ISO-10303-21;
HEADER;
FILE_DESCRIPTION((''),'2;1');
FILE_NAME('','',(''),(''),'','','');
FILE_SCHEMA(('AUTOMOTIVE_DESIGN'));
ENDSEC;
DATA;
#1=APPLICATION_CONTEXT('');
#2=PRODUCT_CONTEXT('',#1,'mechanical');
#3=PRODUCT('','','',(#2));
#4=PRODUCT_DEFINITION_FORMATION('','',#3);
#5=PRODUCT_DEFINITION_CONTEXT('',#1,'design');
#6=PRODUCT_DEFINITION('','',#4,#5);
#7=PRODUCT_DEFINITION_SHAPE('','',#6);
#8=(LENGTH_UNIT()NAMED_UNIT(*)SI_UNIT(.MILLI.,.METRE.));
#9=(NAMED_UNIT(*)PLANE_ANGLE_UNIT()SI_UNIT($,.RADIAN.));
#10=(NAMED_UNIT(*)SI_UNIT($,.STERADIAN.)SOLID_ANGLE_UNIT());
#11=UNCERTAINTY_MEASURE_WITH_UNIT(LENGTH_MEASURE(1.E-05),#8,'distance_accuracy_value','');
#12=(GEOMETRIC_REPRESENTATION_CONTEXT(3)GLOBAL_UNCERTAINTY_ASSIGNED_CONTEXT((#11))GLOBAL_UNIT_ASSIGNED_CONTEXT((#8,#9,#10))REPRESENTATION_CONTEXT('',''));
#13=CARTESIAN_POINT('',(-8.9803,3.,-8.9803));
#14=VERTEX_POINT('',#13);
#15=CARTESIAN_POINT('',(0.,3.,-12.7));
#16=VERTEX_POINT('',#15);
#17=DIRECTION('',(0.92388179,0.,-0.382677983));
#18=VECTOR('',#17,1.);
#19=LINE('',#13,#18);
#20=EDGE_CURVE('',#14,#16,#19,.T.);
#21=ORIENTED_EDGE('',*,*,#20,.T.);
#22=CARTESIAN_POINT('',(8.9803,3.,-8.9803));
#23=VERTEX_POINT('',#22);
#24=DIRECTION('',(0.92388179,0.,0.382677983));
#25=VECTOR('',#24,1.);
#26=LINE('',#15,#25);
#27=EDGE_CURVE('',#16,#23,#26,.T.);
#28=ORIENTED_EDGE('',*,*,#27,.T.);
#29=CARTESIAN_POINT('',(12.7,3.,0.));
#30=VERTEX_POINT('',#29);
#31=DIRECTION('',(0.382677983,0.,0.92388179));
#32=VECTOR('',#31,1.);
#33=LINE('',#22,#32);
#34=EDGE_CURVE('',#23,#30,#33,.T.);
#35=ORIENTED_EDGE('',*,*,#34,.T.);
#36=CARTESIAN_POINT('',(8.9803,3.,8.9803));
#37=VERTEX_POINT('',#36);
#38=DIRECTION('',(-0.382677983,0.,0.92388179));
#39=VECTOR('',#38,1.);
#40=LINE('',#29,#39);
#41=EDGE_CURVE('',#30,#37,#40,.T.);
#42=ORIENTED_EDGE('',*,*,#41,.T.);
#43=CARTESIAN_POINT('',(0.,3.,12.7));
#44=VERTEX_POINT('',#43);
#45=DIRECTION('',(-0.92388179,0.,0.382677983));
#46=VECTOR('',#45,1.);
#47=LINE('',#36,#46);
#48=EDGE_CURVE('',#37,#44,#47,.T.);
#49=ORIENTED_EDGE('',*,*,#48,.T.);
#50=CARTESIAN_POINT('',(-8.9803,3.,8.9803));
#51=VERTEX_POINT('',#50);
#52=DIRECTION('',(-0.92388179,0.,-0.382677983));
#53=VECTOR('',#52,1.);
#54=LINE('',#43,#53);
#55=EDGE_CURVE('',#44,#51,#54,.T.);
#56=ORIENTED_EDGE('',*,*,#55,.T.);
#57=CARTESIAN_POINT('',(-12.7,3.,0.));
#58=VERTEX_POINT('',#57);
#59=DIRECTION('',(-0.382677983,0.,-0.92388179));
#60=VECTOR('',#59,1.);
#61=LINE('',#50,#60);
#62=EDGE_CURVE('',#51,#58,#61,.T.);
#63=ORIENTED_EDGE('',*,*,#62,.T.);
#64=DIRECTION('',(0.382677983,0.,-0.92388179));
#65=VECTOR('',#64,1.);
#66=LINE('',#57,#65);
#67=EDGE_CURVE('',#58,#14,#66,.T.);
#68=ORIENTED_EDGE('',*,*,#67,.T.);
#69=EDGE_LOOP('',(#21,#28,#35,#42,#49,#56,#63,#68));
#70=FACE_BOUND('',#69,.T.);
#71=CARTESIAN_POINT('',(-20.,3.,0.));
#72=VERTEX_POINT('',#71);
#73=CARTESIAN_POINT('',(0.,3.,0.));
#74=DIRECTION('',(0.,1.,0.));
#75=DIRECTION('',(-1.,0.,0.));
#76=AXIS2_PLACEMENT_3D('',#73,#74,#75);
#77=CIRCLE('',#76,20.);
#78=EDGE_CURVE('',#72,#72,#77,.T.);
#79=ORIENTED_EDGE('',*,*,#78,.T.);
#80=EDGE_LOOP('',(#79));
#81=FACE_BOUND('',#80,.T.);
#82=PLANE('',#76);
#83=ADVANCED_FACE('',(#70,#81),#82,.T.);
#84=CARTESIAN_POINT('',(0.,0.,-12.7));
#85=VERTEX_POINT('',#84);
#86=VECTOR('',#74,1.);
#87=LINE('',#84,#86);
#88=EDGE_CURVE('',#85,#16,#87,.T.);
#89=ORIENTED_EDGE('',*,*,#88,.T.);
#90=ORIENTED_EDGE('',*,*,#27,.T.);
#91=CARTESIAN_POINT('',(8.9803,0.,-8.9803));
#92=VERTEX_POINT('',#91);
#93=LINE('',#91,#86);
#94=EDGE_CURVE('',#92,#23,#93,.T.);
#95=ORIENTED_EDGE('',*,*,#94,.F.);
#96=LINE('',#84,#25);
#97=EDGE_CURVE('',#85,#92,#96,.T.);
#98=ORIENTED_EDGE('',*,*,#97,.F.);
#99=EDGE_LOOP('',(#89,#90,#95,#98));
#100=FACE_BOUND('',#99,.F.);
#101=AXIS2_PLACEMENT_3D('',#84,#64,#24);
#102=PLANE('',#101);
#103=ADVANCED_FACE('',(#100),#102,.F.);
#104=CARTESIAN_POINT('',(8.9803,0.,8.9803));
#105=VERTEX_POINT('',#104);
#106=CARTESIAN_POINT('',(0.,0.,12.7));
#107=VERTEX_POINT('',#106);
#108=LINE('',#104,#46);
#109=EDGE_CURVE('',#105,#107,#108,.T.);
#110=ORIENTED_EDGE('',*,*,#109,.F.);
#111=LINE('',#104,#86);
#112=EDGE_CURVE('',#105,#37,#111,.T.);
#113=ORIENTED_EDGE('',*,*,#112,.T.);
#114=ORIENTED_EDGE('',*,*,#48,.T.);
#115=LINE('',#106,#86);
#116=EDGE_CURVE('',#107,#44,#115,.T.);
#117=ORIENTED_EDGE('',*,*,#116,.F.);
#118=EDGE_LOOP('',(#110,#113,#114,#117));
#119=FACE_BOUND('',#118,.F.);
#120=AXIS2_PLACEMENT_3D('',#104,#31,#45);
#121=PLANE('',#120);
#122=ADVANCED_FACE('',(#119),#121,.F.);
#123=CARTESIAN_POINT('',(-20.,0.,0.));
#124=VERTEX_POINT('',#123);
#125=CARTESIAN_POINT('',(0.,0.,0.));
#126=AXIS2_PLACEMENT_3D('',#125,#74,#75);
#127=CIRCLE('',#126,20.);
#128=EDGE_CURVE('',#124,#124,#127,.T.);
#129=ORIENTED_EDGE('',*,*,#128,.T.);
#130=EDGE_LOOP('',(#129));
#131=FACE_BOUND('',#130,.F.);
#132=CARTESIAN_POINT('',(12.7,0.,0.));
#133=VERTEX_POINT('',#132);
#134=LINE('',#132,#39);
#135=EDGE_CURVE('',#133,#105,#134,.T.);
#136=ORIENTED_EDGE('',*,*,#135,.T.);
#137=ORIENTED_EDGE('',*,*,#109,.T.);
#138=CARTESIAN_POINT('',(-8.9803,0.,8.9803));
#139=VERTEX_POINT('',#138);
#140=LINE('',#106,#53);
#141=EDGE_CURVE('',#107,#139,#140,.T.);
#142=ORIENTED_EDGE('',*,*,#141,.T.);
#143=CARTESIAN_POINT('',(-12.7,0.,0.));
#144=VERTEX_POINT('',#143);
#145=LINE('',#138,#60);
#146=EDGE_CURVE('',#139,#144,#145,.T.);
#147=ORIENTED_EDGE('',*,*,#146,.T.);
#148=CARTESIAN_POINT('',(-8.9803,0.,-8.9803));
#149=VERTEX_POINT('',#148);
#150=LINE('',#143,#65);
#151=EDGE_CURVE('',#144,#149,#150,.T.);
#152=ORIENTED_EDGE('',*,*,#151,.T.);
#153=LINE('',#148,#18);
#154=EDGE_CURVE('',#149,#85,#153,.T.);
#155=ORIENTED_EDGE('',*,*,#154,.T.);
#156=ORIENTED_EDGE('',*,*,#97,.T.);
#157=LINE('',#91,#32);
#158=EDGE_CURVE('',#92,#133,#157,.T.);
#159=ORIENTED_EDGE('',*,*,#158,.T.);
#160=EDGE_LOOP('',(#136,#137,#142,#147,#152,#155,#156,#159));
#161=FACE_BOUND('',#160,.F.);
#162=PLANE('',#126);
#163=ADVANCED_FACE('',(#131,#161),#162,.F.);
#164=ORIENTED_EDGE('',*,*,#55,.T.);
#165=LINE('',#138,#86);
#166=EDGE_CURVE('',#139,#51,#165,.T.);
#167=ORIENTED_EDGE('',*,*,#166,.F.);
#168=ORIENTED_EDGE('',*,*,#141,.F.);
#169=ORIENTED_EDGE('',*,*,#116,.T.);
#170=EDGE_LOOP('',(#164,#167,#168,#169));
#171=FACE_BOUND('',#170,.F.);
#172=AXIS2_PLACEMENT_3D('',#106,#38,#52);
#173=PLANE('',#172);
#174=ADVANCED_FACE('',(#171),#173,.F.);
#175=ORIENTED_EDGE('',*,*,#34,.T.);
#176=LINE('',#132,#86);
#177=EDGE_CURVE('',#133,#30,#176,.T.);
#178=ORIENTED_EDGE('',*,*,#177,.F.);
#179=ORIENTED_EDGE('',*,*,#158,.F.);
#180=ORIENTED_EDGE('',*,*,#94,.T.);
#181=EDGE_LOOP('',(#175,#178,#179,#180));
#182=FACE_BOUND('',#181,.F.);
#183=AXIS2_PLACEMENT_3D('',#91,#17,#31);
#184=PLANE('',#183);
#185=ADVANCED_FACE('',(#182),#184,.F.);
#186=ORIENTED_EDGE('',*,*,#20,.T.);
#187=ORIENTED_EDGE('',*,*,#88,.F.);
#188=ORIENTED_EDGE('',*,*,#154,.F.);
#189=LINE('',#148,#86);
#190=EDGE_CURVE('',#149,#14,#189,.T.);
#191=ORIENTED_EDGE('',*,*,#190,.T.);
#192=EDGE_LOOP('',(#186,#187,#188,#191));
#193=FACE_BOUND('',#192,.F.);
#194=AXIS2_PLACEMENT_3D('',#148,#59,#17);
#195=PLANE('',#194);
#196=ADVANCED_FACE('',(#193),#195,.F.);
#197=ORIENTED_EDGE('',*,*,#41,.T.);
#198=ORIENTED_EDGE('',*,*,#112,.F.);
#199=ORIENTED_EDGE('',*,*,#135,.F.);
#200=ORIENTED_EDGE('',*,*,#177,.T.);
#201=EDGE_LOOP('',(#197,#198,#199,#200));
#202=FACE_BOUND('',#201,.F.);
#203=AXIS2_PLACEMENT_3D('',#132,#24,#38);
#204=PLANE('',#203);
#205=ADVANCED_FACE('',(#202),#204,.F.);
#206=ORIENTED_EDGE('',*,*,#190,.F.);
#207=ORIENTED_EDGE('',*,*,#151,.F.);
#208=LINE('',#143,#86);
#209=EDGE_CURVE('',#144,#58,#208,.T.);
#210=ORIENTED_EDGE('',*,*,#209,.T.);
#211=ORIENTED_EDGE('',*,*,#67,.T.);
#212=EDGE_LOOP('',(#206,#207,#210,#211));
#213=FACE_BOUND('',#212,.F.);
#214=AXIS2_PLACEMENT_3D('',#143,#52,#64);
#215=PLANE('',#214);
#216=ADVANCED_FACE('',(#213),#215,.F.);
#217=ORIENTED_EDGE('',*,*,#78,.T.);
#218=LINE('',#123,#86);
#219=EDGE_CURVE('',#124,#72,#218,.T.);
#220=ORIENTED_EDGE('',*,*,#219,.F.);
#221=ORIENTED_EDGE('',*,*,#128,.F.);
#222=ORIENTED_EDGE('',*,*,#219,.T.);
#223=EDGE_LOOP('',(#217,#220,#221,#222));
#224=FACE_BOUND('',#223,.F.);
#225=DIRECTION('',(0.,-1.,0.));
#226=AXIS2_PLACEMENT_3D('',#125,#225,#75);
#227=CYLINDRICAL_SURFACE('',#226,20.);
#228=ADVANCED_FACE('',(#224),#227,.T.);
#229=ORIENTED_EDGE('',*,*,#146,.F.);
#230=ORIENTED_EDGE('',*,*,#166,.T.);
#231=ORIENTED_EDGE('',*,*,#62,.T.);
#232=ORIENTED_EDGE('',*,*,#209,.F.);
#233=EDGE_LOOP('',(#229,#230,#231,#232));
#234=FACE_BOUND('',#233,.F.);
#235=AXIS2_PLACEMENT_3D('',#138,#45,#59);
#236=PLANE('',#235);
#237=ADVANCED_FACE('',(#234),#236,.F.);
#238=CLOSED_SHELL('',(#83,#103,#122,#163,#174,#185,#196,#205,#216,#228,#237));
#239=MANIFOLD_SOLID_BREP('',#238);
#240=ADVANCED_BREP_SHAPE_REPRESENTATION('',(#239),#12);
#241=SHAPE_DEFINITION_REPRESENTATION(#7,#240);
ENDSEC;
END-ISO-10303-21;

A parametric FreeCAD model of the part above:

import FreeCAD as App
import Part
import Sketcher

V = App.Vector
Q = App.Units.Quantity

doc = App.newDocument("Part")
params = doc.addObject("Spreadsheet::Sheet", "Params")
for row, (alias, value) in enumerate([
    ("sketch1_diameter", "40 mm"),
    ("pad1_length", "3 mm"),
], start=1):
    params.set(f"A{row}", alias)
    params.set(f"B{row}", "=" + value)
    params.setAlias(f"B{row}", alias)

body = doc.addObject("PartDesign::Body", "Body")

# Sketch on XZ plane
sketch1 = body.newObject("Sketcher::SketchObject", "Sketch")
sketch1.AttachmentSupport = (doc.getObject("XZ_Plane"), [""])
sketch1.MapMode = "FlatFace"
sketch1.addGeometry([
    Part.Circle(V(0, 0, 0), V(0, 0, 1), 20),  # 0
    Part.LineSegment(V(-8.9803, -8.9803, 0), V(0, -12.7, 0)),  # 1
    Part.LineSegment(V(0, -12.7, 0), V(8.9803, -8.9803, 0)),  # 2
    Part.LineSegment(V(8.9803, -8.9803, 0), V(12.7, 0, 0)),  # 3
    Part.LineSegment(V(12.7, 0, 0), V(8.9803, 8.9803, 0)),  # 4
    Part.LineSegment(V(8.9803, 8.9803, 0), V(0, 12.7, 0)),  # 5
    Part.LineSegment(V(0, 12.7, 0), V(-8.9803, 8.9803, 0)),  # 6
    Part.LineSegment(V(-8.9803, 8.9803, 0), V(-12.7, 0, 0)),  # 7
    Part.LineSegment(V(-12.7, 0, 0), V(-8.9803, -8.9803, 0)),  # 8
], False)
sketch1.addConstraint([
    Sketcher.Constraint("Coincident", 1, 2, 2, 1),
    Sketcher.Constraint("Coincident", 2, 2, 3, 1),
    Sketcher.Constraint("Coincident", 3, 2, 4, 1),
    Sketcher.Constraint("Coincident", 4, 2, 5, 1),
    Sketcher.Constraint("Coincident", 5, 2, 6, 1),
    Sketcher.Constraint("Coincident", 6, 2, 7, 1),
    Sketcher.Constraint("Coincident", 7, 2, 8, 1),
    Sketcher.Constraint("Coincident", 8, 2, 1, 1),
    Sketcher.Constraint("Coincident", 0, 3, -1, 1),
    Sketcher.Constraint("Symmetric", 1, 2, 5, 2, -1, 1),
    Sketcher.Constraint("Symmetric", 2, 2, 6, 2, -1, 1),
    Sketcher.Constraint("Symmetric", 3, 2, 7, 2, -1, 1),
    Sketcher.Constraint("Symmetric", 4, 2, 8, 2, -1, 1),
    Sketcher.Constraint("Symmetric", 4, 2, 6, 2, -2),
    Sketcher.Constraint("PointOnObject", 1, 2, -2),
    Sketcher.Constraint("PointOnObject", 3, 2, -1),
    Sketcher.Constraint("Perpendicular", 1, 3),
    Sketcher.Constraint("Equal", 2, 3),
    Sketcher.Constraint("Diameter", 0, Q("40 mm")),
    Sketcher.Constraint("DistanceY", 1, 2, 5, 2, Q("25.4 mm")),
    Sketcher.Constraint("Angle", 1, Q("-22.4997 deg")),
])
sketch1.setExpression("Constraints[18]", "Params.sketch1_diameter")
pad1 = body.newObject("PartDesign::Pad", "Pad")
pad1.Profile = sketch1
pad1.setExpression("Length", "Params.pad1_length")
pad1.Reversed = True

doc.recompute()
